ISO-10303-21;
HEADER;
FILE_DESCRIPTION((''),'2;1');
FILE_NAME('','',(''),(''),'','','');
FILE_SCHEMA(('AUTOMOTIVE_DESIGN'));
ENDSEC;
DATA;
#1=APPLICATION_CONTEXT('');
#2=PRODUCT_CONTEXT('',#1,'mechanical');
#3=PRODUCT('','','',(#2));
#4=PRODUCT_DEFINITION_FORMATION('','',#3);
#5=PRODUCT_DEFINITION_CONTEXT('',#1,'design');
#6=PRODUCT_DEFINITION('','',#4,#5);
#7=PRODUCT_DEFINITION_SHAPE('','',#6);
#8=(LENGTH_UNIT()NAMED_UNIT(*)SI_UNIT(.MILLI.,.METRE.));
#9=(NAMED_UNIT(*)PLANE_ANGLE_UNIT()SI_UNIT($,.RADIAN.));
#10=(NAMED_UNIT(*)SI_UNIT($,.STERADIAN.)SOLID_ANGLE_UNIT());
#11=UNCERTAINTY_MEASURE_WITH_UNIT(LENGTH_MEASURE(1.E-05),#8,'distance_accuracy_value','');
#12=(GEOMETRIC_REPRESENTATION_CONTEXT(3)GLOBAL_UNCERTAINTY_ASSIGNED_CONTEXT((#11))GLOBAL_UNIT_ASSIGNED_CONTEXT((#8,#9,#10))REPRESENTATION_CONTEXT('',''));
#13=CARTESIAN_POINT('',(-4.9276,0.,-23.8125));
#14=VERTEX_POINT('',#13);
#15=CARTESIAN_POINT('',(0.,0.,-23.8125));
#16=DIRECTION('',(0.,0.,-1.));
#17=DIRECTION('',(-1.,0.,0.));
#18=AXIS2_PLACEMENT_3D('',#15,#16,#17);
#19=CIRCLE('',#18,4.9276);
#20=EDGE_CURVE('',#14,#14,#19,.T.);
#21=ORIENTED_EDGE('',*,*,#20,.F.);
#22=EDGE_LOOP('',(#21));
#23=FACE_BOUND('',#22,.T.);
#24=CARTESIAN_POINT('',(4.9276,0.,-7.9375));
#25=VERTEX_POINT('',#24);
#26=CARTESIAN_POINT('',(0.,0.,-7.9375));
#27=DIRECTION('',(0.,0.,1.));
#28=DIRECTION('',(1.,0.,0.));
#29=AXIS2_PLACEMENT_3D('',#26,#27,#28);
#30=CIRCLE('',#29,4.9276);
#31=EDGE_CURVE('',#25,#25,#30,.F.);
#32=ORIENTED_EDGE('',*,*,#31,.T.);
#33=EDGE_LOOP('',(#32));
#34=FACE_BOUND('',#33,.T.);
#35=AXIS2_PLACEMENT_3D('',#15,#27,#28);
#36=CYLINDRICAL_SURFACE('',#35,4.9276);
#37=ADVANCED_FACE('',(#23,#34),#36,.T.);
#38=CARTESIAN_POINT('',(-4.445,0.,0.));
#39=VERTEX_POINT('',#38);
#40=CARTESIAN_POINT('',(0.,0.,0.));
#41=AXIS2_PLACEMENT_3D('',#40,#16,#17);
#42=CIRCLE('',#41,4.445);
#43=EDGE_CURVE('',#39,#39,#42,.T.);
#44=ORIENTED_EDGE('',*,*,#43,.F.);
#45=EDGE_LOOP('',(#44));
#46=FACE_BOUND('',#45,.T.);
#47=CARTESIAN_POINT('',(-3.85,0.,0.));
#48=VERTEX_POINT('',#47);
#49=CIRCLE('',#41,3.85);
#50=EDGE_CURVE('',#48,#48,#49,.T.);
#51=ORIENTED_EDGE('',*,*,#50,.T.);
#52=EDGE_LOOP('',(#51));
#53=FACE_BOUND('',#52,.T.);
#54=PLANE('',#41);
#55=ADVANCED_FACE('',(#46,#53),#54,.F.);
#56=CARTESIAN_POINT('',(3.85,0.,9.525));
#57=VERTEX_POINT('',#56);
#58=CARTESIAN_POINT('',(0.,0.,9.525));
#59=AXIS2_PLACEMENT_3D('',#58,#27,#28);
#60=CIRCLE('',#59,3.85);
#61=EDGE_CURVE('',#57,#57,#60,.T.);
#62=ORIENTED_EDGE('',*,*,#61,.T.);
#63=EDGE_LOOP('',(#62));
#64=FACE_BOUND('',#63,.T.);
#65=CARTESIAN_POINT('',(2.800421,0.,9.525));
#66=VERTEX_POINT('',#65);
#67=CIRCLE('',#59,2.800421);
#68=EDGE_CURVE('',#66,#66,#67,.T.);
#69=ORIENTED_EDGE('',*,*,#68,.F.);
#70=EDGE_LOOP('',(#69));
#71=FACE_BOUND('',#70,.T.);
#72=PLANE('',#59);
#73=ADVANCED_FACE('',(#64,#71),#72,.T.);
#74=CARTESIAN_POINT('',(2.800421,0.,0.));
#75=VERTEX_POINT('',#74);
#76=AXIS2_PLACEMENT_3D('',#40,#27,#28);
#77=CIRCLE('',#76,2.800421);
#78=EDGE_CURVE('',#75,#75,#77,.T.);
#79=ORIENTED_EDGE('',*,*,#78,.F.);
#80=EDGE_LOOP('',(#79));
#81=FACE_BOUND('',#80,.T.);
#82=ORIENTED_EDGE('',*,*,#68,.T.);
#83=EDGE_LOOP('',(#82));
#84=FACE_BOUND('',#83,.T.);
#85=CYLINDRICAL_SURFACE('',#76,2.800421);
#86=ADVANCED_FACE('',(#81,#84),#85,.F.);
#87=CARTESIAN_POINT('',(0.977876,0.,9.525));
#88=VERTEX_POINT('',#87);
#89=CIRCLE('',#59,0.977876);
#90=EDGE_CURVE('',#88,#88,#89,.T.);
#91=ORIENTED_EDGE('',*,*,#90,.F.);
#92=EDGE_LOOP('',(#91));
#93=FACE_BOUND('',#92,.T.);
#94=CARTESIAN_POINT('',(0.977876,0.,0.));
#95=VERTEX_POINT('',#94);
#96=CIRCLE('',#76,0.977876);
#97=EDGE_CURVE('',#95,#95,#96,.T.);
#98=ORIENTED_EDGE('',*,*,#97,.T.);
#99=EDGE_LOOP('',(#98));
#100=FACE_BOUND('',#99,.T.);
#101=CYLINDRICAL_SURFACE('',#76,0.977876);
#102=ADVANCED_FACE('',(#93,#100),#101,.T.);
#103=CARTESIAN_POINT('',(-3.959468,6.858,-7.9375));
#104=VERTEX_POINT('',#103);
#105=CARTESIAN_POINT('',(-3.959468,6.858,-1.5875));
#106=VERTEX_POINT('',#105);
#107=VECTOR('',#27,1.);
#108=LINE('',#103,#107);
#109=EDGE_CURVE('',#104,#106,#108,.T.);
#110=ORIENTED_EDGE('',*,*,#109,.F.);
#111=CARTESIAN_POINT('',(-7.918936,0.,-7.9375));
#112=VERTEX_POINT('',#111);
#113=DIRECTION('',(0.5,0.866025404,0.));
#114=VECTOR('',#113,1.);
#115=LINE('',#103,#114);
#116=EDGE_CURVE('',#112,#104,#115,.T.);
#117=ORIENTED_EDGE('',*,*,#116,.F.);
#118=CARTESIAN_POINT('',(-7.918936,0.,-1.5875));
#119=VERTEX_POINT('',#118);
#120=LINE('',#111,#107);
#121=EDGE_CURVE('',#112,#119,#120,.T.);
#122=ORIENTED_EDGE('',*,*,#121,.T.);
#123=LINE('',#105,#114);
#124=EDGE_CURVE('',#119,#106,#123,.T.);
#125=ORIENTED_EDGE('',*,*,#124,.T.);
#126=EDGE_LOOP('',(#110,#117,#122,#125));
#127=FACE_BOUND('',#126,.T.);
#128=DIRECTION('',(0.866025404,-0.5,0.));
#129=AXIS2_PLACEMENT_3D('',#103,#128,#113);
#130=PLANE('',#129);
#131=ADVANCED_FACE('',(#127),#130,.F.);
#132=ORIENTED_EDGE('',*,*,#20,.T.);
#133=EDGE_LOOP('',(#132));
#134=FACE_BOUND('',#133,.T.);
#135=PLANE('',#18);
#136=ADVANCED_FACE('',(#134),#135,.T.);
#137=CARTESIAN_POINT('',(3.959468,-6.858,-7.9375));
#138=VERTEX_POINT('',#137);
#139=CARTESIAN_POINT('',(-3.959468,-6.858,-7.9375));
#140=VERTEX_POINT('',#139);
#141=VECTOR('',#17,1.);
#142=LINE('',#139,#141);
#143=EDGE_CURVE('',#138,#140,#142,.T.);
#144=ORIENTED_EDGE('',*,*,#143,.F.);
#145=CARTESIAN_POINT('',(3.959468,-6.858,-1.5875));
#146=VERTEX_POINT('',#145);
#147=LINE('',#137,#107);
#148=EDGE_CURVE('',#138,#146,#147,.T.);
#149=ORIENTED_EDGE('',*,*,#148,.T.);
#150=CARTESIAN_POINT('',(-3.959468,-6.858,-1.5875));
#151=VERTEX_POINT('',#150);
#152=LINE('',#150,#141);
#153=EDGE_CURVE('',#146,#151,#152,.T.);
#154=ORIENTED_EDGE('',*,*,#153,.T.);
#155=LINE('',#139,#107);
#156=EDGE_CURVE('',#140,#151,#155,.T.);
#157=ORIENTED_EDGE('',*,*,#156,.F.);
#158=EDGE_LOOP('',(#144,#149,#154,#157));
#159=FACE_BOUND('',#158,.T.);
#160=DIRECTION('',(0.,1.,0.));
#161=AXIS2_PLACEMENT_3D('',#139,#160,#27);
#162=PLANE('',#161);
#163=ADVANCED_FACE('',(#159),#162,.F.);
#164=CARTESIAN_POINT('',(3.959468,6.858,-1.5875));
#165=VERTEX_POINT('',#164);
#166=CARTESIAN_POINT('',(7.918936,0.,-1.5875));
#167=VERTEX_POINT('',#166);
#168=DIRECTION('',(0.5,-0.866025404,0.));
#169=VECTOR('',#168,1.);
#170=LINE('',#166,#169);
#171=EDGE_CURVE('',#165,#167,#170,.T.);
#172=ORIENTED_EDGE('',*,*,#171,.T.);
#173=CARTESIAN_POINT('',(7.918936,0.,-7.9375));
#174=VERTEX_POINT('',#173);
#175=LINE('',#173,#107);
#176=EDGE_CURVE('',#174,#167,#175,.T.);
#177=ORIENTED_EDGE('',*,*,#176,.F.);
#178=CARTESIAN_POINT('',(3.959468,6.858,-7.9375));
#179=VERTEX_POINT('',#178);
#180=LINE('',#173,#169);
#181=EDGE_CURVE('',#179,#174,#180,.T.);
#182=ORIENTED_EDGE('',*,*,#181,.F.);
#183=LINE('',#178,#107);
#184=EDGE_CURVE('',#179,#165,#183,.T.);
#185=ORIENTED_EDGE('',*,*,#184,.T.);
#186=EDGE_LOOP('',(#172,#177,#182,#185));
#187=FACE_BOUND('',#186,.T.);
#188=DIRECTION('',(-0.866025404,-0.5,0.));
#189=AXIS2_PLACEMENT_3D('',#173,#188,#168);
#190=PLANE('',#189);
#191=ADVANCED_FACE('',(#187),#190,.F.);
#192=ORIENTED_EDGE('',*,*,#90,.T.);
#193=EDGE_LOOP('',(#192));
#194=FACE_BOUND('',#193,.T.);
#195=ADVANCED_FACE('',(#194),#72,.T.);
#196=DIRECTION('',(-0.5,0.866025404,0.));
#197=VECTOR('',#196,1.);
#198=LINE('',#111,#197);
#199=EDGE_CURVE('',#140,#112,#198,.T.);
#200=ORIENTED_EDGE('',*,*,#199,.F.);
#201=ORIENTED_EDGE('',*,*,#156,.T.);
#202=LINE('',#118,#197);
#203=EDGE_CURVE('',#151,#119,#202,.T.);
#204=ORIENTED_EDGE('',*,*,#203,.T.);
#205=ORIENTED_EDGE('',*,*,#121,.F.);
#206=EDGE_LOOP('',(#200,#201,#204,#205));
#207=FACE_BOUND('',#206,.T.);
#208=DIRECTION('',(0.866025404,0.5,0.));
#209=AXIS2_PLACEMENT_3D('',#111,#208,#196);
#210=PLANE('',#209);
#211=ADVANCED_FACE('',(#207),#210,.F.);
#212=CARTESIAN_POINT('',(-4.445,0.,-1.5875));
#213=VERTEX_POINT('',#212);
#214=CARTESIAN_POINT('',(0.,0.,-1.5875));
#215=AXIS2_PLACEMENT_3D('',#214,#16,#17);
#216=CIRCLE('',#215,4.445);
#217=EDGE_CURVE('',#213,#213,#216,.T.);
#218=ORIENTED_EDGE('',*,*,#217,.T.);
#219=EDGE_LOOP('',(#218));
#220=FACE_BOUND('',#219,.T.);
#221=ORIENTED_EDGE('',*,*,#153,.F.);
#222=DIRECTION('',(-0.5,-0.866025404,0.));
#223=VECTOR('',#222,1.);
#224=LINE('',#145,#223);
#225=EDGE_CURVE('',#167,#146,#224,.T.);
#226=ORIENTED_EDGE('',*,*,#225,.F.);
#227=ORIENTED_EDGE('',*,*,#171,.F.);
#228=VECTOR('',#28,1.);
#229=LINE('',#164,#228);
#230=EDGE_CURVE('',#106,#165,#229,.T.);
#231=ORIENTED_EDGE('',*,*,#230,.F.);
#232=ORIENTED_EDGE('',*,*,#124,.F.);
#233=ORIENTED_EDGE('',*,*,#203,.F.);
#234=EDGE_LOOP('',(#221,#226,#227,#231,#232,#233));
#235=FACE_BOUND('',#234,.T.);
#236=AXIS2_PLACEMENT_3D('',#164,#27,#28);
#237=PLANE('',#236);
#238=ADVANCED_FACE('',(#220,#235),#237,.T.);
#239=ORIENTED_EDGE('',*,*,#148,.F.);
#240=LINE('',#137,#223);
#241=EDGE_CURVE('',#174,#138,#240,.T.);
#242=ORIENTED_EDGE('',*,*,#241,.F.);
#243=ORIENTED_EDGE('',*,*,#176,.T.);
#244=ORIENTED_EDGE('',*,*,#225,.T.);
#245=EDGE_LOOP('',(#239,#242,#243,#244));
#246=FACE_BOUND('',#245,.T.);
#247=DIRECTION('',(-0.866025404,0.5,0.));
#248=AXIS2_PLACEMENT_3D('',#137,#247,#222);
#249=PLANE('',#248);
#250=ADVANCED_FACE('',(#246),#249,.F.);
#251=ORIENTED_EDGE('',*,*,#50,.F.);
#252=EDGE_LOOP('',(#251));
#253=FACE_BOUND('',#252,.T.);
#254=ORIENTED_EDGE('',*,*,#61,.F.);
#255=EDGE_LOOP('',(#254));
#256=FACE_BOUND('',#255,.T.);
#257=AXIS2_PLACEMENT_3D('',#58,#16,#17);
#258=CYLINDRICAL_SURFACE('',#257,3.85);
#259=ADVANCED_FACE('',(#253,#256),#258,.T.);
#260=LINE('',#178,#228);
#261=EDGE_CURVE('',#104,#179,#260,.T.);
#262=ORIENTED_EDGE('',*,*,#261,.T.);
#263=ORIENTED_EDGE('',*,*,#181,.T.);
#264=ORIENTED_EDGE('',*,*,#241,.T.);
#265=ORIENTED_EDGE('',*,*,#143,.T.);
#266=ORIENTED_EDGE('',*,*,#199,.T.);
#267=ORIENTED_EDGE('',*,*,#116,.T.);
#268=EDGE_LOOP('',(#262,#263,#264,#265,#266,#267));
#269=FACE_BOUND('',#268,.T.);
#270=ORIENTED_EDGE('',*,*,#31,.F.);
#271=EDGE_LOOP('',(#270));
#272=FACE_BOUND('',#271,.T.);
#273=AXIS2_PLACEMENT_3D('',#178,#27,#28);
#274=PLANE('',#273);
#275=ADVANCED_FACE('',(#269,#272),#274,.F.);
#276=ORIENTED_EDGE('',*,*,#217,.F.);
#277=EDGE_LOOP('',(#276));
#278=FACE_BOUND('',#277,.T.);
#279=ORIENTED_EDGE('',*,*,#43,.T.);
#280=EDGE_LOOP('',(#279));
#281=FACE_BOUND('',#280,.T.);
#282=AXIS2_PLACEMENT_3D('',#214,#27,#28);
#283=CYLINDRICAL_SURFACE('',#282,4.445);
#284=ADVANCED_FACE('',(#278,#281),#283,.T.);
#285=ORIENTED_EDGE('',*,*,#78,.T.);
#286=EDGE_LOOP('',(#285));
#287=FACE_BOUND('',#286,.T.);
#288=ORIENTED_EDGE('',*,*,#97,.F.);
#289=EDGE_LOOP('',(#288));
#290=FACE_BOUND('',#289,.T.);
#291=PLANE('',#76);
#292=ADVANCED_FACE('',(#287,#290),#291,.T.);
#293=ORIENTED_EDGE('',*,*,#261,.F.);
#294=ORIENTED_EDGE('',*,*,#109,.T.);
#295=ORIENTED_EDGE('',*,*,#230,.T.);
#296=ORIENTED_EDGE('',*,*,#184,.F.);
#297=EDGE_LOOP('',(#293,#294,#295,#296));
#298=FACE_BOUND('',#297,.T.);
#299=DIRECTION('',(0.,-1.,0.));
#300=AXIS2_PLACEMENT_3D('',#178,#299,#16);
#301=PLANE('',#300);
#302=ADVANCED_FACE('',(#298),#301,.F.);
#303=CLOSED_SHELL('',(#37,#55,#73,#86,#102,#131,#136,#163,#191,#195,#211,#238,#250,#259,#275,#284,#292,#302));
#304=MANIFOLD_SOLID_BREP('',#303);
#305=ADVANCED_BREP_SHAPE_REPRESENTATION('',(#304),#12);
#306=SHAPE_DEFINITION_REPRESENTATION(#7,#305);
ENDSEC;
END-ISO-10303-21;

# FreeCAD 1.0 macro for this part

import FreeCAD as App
import Part
import Sketcher

V = App.Vector
Q = App.Units.Quantity


def add_polygon(sketch, points):
    """Adds a closed chain of lines whose ends are joined by coincident constraints."""
    first, n = sketch.GeometryCount, len(points)
    for a, b in zip(points, points[1:] + points[:1]):
        sketch.addGeometry(Part.LineSegment(App.Vector(*a, 0), App.Vector(*b, 0)), False)
    for i in range(n):
        sketch.addConstraint(Sketcher.Constraint("Coincident", first + i, 2, first + (i + 1) % n, 1))

doc = App.newDocument("Part")
body = doc.addObject("PartDesign::Body", "Body")

sketch1 = body.newObject("Sketcher::SketchObject", "Sketch")
sketch1.AttachmentSupport = (doc.getObject("XY_Plane"), [""])
sketch1.MapMode = "FlatFace"
sketch1.addGeometry(Part.Circle(V(0, 0, 0), V(0, 0, 1), 3.9), False)
sketch1.addConstraint(Sketcher.Constraint("Coincident", 0, 3, -1, 1))
sketch1.addConstraint(Sketcher.Constraint("Diameter", 0, Q("7.7 mm")))
pad1 = body.newObject("PartDesign::Pad", "Pad")
pad1.Profile = sketch1
pad1.Length = Q("0.375 in")

sketch2 = body.newObject("Sketcher::SketchObject", "Sketch001")
sketch2.AttachmentSupport = (doc.getObject("XY_Plane"), [""])
sketch2.MapMode = "FlatFace"
sketch2.addGeometry(Part.Circle(V(0, 0, 0), V(0, 0, 1), 4.4), False)
sketch2.addConstraint(Sketcher.Constraint("Coincident", 0, 3, -1, 1))
sketch2.addConstraint(Sketcher.Constraint("Diameter", 0, Q("0.35 in")))
pad2 = body.newObject("PartDesign::Pad", "Pad001")
pad2.Profile = sketch2
pad2.Length = Q("0.0625 in")
pad2.Reversed = True

sketch3 = body.newObject("Sketcher::SketchObject", "Sketch002")
sketch3.AttachmentSupport = (doc.getObject("XY_Plane"), [""])
sketch3.MapMode = "FlatFace"
sketch3.AttachmentOffset = App.Placement(V(0, 0, -0.0625 * 25.4), App.Rotation())
add_polygon(sketch3, [(-4, 7), (4, 7), (8, 0), (4, -7), (-4, -7), (-8, 0)])
sketch3.addConstraint(Sketcher.Constraint("Horizontal", 0))
sketch3.addConstraint(Sketcher.Constraint("Horizontal", 3))
sketch3.addConstraint(Sketcher.Constraint("Symmetric", 0, 2, 3, 2, -1, 1))
sketch3.addConstraint(Sketcher.Constraint("Symmetric", 1, 2, 4, 2, -1, 1))
sketch3.addConstraint(Sketcher.Constraint("PointOnObject", 1, 2, -1))
sketch3.addConstraint(Sketcher.Constraint("Parallel", 2, 5))
sketch3.addConstraint(Sketcher.Constraint("Vertical", 0, 2, 2, 2))
sketch3.addConstraint(Sketcher.Constraint("Angle", 1, Q("-60 deg")))
sketch3.addConstraint(Sketcher.Constraint("DistanceY", -1, 1, 0, 2, Q("0.27 in")))
sketch3.addConstraint(Sketcher.Constraint("DistanceX", 0, 1, 0, 2, Q("7.918936 mm")))
pad3 = body.newObject("PartDesign::Pad", "Pad002")
pad3.Profile = sketch3
pad3.Length = Q("0.25 in")
pad3.Reversed = True

sketch4 = body.newObject("Sketcher::SketchObject", "Sketch003")
sketch4.AttachmentSupport = (doc.getObject("XY_Plane"), [""])
sketch4.MapMode = "FlatFace"
sketch4.AttachmentOffset = App.Placement(V(0, 0, -0.3125 * 25.4), App.Rotation())
sketch4.addGeometry(Part.Circle(V(0, 0, 0), V(0, 0, 1), 4.9), False)
sketch4.addConstraint(Sketcher.Constraint("Coincident", 0, 3, -1, 1))
sketch4.addConstraint(Sketcher.Constraint("Diameter", 0, Q("0.388 in")))
pad4 = body.newObject("PartDesign::Pad", "Pad003")
pad4.Profile = sketch4
pad4.Length = Q("0.625 in")
pad4.Reversed = True

sketch5 = body.newObject("Sketcher::SketchObject", "Sketch004")
sketch5.AttachmentSupport = (doc.getObject("XY_Plane"), [""])
sketch5.MapMode = "FlatFace"
sketch5.AttachmentOffset = App.Placement(V(0, 0, 0.375 * 25.4), App.Rotation())
sketch5.addGeometry(Part.Circle(V(0, 0, 0), V(0, 0, 1), 2.8), False)
sketch5.addGeometry(Part.Circle(V(0, 0, 0), V(0, 0, 1), 1), False)
sketch5.addConstraint(Sketcher.Constraint("Coincident", 0, 3, -1, 1))
sketch5.addConstraint(Sketcher.Constraint("Coincident", 1, 3, -1, 1))
sketch5.addConstraint(Sketcher.Constraint("Diameter", 0, Q("5.600842 mm")))
sketch5.addConstraint(Sketcher.Constraint("Diameter", 1, Q("1.955753 mm")))
pocket1 = body.newObject("PartDesign::Pocket", "Pocket")
pocket1.Profile = sketch5
pocket1.Length = Q("0.375 in")

doc.recompute()
